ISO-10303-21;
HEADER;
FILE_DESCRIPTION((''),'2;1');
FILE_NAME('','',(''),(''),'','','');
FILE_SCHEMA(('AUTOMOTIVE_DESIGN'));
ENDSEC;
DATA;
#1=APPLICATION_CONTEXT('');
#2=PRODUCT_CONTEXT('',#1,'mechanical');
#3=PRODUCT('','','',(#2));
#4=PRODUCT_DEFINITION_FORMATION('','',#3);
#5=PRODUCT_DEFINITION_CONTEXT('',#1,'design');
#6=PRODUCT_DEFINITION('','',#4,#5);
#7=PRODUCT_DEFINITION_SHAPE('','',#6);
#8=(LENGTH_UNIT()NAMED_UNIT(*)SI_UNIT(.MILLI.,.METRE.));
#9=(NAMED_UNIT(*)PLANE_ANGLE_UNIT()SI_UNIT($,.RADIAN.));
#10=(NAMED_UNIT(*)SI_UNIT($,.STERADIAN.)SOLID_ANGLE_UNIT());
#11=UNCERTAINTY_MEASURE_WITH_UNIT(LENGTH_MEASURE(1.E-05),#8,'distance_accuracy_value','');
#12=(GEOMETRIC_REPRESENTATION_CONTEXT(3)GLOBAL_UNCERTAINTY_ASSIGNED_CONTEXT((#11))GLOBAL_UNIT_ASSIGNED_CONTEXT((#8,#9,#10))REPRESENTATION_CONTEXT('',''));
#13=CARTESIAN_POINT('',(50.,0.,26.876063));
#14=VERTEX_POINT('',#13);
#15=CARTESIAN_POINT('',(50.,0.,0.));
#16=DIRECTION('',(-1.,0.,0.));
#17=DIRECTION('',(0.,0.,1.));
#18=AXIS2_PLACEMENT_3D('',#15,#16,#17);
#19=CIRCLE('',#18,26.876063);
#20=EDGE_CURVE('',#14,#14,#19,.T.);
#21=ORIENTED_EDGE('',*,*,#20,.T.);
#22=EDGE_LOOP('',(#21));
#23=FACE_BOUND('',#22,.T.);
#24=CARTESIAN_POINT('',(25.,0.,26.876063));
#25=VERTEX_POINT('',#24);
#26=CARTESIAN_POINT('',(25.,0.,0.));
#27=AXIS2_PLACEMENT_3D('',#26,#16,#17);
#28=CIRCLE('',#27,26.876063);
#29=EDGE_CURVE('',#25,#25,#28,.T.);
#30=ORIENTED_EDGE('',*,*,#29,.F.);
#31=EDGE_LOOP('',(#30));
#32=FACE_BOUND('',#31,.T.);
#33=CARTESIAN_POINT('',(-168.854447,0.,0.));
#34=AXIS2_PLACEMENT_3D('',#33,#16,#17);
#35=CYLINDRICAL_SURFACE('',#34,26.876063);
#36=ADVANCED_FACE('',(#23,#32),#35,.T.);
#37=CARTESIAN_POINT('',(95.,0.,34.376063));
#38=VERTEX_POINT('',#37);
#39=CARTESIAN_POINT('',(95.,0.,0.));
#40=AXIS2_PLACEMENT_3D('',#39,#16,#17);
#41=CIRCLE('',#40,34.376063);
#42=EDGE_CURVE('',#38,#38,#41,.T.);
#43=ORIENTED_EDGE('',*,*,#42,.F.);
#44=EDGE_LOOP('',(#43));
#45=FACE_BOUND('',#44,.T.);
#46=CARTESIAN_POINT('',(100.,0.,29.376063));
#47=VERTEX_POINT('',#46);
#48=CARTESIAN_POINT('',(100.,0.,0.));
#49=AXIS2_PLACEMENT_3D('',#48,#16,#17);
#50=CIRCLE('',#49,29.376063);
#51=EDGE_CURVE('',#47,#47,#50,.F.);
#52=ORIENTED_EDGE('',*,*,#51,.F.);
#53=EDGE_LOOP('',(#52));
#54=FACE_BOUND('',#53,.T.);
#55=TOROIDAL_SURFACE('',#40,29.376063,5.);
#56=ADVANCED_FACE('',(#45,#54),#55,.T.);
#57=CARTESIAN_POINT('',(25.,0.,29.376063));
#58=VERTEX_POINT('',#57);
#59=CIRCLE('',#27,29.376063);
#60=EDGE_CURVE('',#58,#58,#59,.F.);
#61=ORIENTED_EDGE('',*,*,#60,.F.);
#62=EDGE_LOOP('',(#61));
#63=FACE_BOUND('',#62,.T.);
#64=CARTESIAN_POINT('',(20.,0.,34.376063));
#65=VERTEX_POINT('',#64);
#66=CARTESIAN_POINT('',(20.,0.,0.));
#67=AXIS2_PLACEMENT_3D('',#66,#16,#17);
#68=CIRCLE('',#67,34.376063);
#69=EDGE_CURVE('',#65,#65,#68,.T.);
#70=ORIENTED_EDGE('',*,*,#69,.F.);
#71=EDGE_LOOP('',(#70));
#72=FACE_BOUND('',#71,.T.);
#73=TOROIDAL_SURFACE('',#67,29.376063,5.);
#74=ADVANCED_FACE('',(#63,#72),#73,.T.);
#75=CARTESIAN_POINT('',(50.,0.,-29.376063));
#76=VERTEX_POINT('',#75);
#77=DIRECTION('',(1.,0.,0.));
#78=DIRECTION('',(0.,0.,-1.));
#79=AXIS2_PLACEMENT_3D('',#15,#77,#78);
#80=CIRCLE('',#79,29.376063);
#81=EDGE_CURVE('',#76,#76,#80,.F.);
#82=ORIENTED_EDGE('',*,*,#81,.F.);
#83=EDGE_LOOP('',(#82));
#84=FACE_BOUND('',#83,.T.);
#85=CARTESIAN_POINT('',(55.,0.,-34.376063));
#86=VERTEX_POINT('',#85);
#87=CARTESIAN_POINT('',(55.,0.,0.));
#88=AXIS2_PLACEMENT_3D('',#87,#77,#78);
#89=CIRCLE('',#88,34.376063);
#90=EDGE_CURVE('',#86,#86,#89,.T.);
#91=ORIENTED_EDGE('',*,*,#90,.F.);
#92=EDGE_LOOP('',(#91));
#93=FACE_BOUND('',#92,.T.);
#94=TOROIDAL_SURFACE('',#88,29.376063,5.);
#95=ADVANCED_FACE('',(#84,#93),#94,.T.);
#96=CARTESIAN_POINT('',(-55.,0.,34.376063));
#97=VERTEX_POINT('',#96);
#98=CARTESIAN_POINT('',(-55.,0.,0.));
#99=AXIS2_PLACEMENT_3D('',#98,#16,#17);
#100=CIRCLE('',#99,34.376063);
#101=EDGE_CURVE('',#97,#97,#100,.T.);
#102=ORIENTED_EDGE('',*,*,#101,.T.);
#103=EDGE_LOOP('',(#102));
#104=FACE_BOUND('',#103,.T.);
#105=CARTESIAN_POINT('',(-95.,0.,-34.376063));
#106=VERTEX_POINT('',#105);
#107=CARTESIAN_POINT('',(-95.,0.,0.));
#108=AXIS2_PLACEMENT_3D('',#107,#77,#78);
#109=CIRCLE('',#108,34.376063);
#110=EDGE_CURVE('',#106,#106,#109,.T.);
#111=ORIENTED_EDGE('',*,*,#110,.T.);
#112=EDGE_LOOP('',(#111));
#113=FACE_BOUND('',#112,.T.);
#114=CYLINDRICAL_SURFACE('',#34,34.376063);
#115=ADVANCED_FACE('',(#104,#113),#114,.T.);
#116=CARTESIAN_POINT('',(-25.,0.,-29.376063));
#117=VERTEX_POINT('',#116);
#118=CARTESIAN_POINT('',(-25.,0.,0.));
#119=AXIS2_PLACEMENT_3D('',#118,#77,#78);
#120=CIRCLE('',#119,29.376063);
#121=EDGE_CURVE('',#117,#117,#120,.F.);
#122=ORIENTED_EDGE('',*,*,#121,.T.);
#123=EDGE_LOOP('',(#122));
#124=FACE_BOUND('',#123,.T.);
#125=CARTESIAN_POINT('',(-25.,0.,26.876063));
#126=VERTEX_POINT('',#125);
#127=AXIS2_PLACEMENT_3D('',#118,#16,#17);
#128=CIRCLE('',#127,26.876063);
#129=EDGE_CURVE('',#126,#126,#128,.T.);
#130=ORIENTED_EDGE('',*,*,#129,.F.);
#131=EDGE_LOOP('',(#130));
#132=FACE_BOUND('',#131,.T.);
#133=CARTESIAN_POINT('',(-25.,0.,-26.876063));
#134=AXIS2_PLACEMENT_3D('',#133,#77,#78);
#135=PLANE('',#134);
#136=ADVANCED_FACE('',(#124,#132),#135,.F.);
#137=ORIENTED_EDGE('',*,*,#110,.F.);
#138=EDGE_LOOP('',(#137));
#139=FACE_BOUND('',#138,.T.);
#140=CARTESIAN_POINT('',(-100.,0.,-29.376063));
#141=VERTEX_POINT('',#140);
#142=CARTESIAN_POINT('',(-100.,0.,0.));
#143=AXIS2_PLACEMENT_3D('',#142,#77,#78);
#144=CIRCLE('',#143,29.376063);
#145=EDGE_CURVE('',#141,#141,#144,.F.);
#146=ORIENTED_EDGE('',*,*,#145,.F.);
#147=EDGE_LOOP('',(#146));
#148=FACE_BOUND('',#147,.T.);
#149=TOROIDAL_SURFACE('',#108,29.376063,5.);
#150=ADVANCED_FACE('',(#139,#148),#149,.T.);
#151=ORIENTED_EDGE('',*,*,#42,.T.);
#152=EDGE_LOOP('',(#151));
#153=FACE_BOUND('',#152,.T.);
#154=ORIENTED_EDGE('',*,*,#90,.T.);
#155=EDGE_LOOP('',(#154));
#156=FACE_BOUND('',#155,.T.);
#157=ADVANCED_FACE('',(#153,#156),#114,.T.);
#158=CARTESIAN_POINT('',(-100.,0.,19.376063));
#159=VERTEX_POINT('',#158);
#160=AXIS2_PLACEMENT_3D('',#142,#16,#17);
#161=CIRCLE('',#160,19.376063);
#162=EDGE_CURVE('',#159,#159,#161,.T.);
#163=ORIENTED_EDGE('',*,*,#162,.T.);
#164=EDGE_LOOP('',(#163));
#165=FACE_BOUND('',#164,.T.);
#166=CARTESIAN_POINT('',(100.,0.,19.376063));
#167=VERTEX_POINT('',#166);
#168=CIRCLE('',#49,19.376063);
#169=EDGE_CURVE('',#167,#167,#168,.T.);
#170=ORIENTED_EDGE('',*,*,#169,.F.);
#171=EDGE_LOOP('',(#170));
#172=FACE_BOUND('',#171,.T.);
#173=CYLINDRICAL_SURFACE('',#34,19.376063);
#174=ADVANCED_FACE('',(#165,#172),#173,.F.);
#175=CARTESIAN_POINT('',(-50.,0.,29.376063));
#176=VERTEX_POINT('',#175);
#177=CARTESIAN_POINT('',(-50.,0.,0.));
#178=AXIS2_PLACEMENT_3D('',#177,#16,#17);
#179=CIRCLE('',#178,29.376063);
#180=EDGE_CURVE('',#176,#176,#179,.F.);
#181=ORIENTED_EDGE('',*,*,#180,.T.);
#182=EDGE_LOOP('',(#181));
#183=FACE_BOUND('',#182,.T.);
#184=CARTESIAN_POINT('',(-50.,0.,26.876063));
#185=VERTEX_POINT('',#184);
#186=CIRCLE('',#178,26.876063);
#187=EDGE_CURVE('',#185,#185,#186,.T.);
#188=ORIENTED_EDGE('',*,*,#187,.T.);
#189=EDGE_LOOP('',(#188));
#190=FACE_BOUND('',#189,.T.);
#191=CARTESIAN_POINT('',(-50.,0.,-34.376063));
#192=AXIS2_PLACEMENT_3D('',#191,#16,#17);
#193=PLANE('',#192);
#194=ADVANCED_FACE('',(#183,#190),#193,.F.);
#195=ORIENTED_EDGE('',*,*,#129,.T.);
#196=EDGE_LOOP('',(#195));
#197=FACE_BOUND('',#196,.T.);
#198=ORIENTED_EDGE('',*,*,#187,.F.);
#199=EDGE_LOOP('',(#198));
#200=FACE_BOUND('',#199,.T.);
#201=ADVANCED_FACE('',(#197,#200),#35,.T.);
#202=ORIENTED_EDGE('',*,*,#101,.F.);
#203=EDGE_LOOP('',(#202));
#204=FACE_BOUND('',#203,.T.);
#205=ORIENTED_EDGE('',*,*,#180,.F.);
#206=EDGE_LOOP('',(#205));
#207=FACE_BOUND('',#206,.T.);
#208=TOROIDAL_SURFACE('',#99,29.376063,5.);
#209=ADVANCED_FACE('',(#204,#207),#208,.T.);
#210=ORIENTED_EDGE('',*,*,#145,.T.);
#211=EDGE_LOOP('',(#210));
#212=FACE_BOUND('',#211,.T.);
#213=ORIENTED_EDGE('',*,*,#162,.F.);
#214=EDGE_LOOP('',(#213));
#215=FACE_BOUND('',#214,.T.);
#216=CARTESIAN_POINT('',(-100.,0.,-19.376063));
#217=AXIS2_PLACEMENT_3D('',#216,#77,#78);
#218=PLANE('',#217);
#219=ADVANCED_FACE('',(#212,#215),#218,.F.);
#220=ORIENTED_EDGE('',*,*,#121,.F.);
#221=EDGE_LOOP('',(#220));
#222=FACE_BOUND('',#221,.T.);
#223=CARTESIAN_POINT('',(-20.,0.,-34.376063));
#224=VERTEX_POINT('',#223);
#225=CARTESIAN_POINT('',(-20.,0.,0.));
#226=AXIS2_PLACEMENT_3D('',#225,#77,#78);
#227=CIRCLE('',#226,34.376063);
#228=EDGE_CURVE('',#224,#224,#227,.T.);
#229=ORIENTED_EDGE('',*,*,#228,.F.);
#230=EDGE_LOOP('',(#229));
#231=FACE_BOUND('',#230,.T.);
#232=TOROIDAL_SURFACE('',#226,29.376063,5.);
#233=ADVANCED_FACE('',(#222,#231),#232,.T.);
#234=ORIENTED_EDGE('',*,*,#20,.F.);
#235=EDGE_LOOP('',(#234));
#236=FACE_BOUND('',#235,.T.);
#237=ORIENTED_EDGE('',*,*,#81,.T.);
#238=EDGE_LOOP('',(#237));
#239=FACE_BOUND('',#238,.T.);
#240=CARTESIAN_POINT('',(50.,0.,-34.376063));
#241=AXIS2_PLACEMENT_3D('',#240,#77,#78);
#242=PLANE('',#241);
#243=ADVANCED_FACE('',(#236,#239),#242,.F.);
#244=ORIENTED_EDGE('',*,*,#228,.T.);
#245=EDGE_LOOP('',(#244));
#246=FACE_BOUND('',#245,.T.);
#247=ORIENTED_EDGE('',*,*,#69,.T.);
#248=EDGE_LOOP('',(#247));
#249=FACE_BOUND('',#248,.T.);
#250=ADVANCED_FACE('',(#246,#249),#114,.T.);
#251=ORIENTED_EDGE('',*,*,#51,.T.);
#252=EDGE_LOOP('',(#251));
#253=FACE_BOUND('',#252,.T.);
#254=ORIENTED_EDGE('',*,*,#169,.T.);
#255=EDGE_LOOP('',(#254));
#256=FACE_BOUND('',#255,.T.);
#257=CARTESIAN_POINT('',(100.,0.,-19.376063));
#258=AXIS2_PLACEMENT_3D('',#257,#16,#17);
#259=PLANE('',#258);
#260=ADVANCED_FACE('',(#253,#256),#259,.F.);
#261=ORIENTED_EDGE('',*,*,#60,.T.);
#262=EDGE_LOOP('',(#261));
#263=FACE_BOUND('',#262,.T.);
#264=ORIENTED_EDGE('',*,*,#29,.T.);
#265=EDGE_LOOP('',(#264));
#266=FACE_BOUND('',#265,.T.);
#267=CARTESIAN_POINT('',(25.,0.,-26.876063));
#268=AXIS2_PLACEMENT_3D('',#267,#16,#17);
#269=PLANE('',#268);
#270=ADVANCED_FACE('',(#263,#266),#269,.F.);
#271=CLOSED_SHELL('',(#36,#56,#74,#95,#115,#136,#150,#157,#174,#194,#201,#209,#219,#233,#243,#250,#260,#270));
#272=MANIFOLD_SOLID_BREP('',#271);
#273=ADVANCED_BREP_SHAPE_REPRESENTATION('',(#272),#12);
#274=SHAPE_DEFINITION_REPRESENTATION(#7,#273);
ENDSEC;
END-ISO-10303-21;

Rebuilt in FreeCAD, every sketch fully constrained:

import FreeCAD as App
import Part
import Sketcher
Q = App.Units.Quantity


def edges_at(feature, points):
    """Names of the edges that pass closest to the given points."""
    edges = feature.Shape.Edges
    near = lambda p: min(range(len(edges)), key=lambda i: edges[i].distToShape(Part.Vertex(*p))[0])
    return sorted({f"Edge{near(p) + 1}" for p in points})


def add_polygon(sketch, points):
    """Adds a closed chain of lines whose ends are joined by coincident constraints."""
    first, n = sketch.GeometryCount, len(points)
    for a, b in zip(points, points[1:] + points[:1]):
        sketch.addGeometry(Part.LineSegment(App.Vector(*a, 0), App.Vector(*b, 0)), False)
    for i in range(n):
        sketch.addConstraint(Sketcher.Constraint("Coincident", first + i, 2, first + (i + 1) % n, 1))

doc = App.newDocument("Part")
params = doc.addObject("Spreadsheet::Sheet", "Params")
for row, (alias, value) in enumerate([
    ("sketch1_width", "200 mm"),
    ("sketch1_width2", "50 mm"),
    ("sketch1_height", "15 mm"),
    ("sketch1_height2", "7.5 mm"),
    ("revolution_angle", "360 deg"),
    ("fillet_radius", "5 mm"),
], start=1):
    params.set(f"A{row}", alias)
    params.set(f"B{row}", "=" + value)
    params.setAlias(f"B{row}", alias)

body = doc.addObject("PartDesign::Body", "Body")

sketch1 = body.newObject("Sketcher::SketchObject", "Sketch")
sketch1.AttachmentSupport = (doc.getObject("XZ_Plane"), [""])
sketch1.MapMode = "FlatFace"
add_polygon(sketch1, [(-100, -19.376063), (100, -19.376063), (100, -34.376063), (50, -34.376063), (50, -26.876063), (25, -26.876063), (25, -34.376063), (-25, -34.376063), (-25, -26.876063), (-50, -26.876063), (-50, -34.376063), (-100, -34.376063)])
sketch1.addConstraint([
    Sketcher.Constraint("Horizontal", 0),
    Sketcher.Constraint("Vertical", 1),
    Sketcher.Constraint("Horizontal", 2),
    Sketcher.Constraint("Vertical", 3),
    Sketcher.Constraint("Horizontal", 4),
    Sketcher.Constraint("Vertical", 5),
    Sketcher.Constraint("Horizontal", 6),
    Sketcher.Constraint("Vertical", 7),
    Sketcher.Constraint("Horizontal", 8),
    Sketcher.Constraint("Vertical", 9),
    Sketcher.Constraint("Horizontal", 10),
    Sketcher.Constraint("Vertical", 11),
    Sketcher.Constraint("Symmetric", 4, 2, 7, 2, -2),
    Sketcher.Constraint("Symmetric", 2, 2, 9, 2, -2),
    Sketcher.Constraint("Horizontal", 2, 2, 5, 2),
    Sketcher.Constraint("Equal", 2, 6),
    Sketcher.Constraint("Equal", 6, 10),
    Sketcher.Constraint("DistanceX", 0, 1, 0, 2, Q("200 mm")),
    Sketcher.Constraint("DistanceX", 2, 2, 2, 1, Q("50 mm")),
    Sketcher.Constraint("DistanceY", 1, 2, 1, 1, Q("15 mm")),
    Sketcher.Constraint("DistanceY", 3, 1, 3, 2, Q("7.5 mm")),
    Sketcher.Constraint("DistanceY", 0, 2, -1, 1, Q("19.376063 mm")),
])
sketch1.setExpression("Constraints[29]", "Params.sketch1_width")
sketch1.setExpression("Constraints[30]", "Params.sketch1_width2")
sketch1.setExpression("Constraints[31]", "Params.sketch1_height")
sketch1.setExpression("Constraints[32]", "Params.sketch1_height2")
revolution = body.newObject("PartDesign::Revolution", "Revolution")
revolution.Profile = sketch1
revolution.ReferenceAxis = (sketch1, ["H_Axis"])
revolution.setExpression("Angle", "Params.revolution_angle")
doc.recompute()

fillet = body.newObject("PartDesign::Fillet", "Fillet")
fillet.Base = (revolution, edges_at(revolution, [
    (-100, 0, -34.376),
    (-50, 0, -34.376),
    (-25, 0, -34.376),
    (25, 0, -34.376),
    (50, 0, -34.376),
    (100, 0, -34.376),
]))
fillet.setExpression("Radius", "Params.fillet_radius")

doc.recompute()
